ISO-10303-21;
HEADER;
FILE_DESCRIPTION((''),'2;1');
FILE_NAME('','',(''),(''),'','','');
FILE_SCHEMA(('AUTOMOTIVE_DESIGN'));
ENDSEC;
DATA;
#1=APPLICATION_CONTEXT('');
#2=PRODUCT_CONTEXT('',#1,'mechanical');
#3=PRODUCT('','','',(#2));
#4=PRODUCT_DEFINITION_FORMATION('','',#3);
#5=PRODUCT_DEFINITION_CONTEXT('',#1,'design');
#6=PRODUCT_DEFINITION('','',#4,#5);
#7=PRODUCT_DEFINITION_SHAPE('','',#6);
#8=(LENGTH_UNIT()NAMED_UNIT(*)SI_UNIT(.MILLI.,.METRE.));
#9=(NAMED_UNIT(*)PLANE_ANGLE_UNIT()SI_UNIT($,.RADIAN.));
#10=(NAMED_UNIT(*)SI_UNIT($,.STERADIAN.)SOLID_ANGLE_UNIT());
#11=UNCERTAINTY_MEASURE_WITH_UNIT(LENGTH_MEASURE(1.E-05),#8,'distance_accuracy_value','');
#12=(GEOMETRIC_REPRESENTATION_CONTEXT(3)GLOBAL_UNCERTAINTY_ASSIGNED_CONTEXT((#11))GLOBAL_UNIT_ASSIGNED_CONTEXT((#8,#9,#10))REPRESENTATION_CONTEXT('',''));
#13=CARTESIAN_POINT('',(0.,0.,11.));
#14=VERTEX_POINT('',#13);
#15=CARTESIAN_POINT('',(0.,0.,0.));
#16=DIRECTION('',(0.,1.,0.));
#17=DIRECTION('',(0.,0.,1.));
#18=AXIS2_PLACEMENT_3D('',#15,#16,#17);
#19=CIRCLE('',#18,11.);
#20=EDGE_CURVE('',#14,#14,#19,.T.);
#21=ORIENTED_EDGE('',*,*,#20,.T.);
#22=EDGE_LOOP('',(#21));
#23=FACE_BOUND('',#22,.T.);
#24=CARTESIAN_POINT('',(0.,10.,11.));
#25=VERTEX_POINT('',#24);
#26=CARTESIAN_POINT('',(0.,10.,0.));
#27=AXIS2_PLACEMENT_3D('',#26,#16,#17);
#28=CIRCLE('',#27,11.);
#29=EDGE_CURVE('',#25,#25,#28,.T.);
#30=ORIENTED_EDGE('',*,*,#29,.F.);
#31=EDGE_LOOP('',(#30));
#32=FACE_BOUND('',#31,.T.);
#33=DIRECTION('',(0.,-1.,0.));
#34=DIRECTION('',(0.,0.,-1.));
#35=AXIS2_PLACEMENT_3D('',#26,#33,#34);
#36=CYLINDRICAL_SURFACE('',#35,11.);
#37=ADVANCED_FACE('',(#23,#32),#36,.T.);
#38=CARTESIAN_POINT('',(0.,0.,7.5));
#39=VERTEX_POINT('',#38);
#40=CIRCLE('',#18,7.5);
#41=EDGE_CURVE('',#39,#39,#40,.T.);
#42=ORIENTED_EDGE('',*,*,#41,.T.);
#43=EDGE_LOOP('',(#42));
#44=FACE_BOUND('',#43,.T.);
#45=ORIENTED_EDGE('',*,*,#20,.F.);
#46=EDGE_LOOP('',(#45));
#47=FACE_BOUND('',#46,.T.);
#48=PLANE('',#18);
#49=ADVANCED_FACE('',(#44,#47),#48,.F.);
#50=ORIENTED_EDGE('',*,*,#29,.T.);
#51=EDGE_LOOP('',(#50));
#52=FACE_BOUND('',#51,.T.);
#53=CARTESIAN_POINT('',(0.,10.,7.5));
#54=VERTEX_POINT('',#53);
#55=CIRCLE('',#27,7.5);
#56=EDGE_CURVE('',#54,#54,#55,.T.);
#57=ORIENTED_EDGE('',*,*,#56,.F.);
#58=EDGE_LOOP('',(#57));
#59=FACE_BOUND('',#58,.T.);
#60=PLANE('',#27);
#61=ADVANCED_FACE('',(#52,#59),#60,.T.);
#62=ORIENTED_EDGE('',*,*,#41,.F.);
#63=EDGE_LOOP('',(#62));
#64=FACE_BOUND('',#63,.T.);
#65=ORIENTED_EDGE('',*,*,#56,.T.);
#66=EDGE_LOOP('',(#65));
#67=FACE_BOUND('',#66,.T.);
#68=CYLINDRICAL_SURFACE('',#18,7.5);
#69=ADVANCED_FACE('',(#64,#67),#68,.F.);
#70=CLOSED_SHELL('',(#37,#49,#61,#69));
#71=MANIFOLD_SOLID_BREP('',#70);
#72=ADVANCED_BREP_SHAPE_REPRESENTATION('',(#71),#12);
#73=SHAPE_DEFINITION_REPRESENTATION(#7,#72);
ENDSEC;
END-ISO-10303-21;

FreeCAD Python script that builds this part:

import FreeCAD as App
import Part
import Sketcher

V = App.Vector
Q = App.Units.Quantity

doc = App.newDocument("Part")
body = doc.addObject("PartDesign::Body", "Body")

sketch1 = body.newObject("Sketcher::SketchObject", "Sketch")
sketch1.AttachmentSupport = (doc.getObject("XZ_Plane"), [""])
sketch1.MapMode = "FlatFace"
sketch1.addGeometry(Part.Circle(V(0, 0, 0), V(0, 0, 1), 11), False)
sketch1.addConstraint([
    Sketcher.Constraint("Coincident", 0, 3, -1, 1),
    Sketcher.Constraint("Diameter", 0, Q("22 mm")),
])
pad1 = body.newObject("PartDesign::Pad", "Pad")
pad1.Profile = sketch1
pad1.Length = 10
pad1.Reversed = True

sketch2 = body.newObject("Sketcher::SketchObject", "Sketch001")
sketch2.AttachmentSupport = (doc.getObject("XZ_Plane"), [""])
sketch2.MapMode = "FlatFace"
sketch2.AttachmentOffset = App.Placement(V(0, 0, -10), App.Rotation())
sketch2.addGeometry(Part.Circle(V(0, 0, 0), V(0, 0, 1), 8), False)
sketch2.addConstraint([
    Sketcher.Constraint("Coincident", 0, 3, -1, 1),
    Sketcher.Constraint("Diameter", 0, Q("15 mm")),
])
pocket1 = body.newObject("PartDesign::Pocket", "Pocket")
pocket1.Profile = sketch2
pocket1.Length = 10
pocket1.Reversed = True

doc.recompute()
